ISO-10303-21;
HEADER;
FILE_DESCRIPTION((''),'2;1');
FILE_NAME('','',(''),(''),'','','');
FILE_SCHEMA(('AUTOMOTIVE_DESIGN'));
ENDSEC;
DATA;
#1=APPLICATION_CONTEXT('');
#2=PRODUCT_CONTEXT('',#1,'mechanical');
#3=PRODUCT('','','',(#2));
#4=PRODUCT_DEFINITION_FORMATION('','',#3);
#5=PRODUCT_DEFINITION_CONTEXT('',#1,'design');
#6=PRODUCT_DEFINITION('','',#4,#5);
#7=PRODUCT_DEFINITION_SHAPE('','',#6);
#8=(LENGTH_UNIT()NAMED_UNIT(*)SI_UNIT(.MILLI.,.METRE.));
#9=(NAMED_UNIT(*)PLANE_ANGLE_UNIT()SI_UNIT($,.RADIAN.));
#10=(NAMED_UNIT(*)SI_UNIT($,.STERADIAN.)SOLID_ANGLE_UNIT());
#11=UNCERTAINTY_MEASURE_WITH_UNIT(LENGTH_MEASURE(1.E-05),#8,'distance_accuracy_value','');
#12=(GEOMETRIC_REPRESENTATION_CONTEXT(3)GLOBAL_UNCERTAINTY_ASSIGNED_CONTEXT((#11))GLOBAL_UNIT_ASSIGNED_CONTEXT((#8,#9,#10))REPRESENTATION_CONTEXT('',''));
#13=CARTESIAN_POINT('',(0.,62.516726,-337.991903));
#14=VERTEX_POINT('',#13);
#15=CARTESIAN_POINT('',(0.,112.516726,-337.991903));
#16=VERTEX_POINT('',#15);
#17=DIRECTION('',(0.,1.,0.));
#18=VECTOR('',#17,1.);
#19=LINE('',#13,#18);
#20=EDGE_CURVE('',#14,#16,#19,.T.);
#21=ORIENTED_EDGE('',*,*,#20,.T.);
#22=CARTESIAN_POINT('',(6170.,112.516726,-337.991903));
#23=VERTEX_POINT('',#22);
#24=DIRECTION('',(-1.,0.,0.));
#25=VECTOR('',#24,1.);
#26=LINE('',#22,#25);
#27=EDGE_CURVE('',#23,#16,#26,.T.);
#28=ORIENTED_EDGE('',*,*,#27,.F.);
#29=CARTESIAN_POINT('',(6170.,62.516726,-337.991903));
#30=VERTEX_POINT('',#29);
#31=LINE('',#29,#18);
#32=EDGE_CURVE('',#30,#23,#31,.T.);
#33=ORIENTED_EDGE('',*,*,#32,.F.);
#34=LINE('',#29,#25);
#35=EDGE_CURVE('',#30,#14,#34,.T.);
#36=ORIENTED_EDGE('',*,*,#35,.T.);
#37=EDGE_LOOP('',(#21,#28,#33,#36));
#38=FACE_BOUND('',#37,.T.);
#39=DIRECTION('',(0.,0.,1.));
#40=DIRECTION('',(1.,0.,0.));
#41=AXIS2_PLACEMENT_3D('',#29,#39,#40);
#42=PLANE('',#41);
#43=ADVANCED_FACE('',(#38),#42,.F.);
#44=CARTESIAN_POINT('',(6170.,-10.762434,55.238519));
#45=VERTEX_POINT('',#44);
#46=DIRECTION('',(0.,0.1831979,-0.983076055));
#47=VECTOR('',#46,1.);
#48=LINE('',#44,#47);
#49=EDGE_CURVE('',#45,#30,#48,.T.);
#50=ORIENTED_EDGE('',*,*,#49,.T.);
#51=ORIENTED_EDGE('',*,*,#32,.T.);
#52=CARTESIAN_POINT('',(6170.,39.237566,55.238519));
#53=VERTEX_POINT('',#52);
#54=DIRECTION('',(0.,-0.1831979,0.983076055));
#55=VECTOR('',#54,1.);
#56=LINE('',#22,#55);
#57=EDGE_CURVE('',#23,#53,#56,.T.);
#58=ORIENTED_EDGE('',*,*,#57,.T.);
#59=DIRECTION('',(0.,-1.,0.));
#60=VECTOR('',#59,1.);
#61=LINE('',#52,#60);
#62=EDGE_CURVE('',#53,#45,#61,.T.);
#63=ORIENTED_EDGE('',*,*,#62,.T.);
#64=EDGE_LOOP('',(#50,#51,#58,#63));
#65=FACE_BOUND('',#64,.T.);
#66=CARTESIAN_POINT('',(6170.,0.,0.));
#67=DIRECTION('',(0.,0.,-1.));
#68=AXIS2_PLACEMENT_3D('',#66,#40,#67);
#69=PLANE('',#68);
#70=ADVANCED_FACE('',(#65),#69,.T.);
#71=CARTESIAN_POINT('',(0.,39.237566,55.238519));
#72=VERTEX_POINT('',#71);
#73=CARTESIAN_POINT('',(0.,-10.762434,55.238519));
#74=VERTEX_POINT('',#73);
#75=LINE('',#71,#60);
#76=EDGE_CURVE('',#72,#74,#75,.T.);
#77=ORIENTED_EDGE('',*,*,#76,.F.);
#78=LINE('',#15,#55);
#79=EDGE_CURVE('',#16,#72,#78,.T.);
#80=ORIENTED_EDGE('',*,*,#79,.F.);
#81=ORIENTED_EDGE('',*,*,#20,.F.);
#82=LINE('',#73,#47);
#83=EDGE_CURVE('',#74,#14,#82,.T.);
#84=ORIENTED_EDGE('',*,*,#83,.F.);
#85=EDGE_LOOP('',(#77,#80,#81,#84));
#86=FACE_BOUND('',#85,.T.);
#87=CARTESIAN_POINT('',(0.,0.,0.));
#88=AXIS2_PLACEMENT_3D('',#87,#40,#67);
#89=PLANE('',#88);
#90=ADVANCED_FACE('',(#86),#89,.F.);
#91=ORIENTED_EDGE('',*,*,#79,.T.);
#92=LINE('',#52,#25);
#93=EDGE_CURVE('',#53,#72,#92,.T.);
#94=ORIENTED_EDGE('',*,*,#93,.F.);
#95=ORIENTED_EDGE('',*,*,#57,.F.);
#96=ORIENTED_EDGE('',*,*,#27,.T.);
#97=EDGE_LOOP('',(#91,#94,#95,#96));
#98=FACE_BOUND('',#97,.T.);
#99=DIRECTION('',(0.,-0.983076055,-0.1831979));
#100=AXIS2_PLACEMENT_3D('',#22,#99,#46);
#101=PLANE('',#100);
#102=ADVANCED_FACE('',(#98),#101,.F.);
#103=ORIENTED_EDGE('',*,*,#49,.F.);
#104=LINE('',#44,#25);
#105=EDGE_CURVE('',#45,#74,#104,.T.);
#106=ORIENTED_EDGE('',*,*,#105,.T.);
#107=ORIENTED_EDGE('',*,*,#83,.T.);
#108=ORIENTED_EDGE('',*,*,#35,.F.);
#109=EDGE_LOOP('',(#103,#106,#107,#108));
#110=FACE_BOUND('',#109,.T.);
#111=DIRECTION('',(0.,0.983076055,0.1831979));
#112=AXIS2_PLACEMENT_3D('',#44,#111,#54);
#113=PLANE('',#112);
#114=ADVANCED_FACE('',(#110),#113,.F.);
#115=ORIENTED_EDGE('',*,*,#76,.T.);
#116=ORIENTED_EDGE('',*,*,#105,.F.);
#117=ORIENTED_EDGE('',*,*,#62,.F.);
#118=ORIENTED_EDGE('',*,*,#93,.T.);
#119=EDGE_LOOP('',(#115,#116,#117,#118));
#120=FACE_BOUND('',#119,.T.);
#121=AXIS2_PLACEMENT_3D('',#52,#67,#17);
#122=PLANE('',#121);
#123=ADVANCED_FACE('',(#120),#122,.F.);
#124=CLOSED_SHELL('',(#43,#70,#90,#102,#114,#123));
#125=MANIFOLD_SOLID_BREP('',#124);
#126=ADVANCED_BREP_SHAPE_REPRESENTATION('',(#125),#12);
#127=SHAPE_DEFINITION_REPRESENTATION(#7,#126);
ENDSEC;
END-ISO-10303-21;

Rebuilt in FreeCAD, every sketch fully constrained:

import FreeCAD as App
import Part
import Sketcher
from FreeCAD import Vector
Q = App.Units.Quantity


def add_polygon(sketch, points):
    """Adds a closed chain of lines whose ends are joined by coincident constraints."""
    first, n = sketch.GeometryCount, len(points)
    for a, b in zip(points, points[1:] + points[:1]):
        sketch.addGeometry(Part.LineSegment(App.Vector(*a, 0), App.Vector(*b, 0)), False)
    for i in range(n):
        sketch.addConstraint(Sketcher.Constraint("Coincident", first + i, 2, first + (i + 1) % n, 1))

doc = App.newDocument("Part")
body = doc.addObject("PartDesign::Body", "Body")

# Sketch on YZ plane
sketch1 = body.newObject("Sketcher::SketchObject", "Sketch")
sketch1.AttachmentSupport = (doc.getObject("YZ_Plane"), [""])
sketch1.MapMode = "FlatFace"
add_polygon(sketch1, [(113, -338), (39, 55), (-11, 55), (63, -338)])  # lines 0-3
sketch1.addConstraint([
    Sketcher.Constraint("Horizontal", 1),
    Sketcher.Constraint("Horizontal", 3),
    Sketcher.Constraint("Parallel", 0, 2),
    Sketcher.Constraint("DistanceX", 1, 2, 1, 1, Q("50 mm")),
    Sketcher.Constraint("Distance", 0, Q("400 mm")),
    Sketcher.Constraint("DistanceY", -1, 1, 0, 2, Q("55.238519 mm")),
    Sketcher.Constraint("DistanceX", 0, 2, 2, 2, Q("23.27916 mm")),
    Sketcher.Constraint("DistanceX", -1, 1, 0, 2, Q("39.237566 mm")),
])
pad1 = body.newObject("PartDesign::Pad", "Pad")
pad1.Profile = sketch1
pad1.Length = 6170

doc.recompute()
